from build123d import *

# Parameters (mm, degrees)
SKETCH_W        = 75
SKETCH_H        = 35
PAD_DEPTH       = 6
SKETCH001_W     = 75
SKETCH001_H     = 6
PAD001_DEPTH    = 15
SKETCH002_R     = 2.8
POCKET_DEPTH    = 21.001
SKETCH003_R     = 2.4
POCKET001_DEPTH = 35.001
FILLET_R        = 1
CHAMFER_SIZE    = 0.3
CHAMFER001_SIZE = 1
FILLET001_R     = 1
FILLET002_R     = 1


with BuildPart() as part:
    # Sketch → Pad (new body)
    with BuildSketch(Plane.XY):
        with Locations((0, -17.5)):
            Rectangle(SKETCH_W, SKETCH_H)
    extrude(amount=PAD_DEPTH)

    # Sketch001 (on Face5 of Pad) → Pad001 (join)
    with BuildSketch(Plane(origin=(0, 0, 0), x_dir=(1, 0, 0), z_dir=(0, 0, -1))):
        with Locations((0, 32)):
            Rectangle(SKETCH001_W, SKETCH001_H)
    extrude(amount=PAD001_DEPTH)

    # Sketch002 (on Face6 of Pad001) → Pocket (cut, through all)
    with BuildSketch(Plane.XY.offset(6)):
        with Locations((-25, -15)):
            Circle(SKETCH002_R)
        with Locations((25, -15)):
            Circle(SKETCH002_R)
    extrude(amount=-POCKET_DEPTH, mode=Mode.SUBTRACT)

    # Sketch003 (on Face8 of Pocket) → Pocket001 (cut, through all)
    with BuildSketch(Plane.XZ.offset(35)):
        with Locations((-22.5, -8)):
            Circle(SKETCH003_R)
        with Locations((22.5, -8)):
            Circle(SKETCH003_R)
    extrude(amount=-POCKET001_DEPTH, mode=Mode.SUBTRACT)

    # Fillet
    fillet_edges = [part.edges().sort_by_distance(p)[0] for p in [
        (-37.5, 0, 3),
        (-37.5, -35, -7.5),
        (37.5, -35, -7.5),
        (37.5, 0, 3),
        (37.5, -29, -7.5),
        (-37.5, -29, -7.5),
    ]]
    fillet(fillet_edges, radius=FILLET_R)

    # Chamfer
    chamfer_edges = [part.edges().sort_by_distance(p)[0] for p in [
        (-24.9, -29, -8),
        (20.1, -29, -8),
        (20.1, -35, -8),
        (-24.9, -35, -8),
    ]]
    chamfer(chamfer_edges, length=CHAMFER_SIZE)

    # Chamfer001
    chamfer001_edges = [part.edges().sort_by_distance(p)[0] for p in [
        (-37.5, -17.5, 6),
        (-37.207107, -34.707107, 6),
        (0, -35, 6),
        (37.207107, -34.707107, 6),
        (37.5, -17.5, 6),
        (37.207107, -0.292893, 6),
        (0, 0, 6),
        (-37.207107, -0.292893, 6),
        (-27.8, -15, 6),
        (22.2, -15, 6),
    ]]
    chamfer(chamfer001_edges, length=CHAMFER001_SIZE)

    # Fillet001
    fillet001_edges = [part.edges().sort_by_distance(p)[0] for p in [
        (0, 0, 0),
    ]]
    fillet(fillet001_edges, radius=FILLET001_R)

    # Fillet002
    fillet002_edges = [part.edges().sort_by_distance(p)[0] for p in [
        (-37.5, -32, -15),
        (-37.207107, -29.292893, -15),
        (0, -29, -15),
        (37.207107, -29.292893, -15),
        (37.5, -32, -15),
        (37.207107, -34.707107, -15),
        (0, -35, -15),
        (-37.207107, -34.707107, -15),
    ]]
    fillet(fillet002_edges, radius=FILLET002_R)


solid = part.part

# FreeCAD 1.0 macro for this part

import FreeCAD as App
import Part
import Sketcher


def edges_at(feature, points):
    """Names of the edges that pass closest to the given points."""
    edges = feature.Shape.Edges
    near = lambda p: min(range(len(edges)), key=lambda i: edges[i].distToShape(Part.Vertex(*p))[0])
    return sorted({f"Edge{near(p) + 1}" for p in points})

doc = App.newDocument("Part")
body = doc.addObject("PartDesign::Body", "Body")

sketch1 = body.newObject("Sketcher::SketchObject", "Sketch")
sketch1.AttachmentSupport = (doc.getObject("XY_Plane"), [""])
sketch1.MapMode = "FlatFace"
sketch1.addGeometry([
    Part.LineSegment(App.Vector(-37.5, 0, 0), App.Vector(-37.5, -35, 0)),
    Part.LineSegment(App.Vector(-37.5, -35, 0), App.Vector(37.5, -35, 0)),
    Part.LineSegment(App.Vector(37.5, -35, 0), App.Vector(37.5, 0, 0)),
    Part.LineSegment(App.Vector(37.5, 0, 0), App.Vector(-37.5, 0, 0)),
], False)
sketch1.addConstraint([
    Sketcher.Constraint("Coincident", 0, 2, 1, 1),
    Sketcher.Constraint("Coincident", 1, 2, 2, 1),
    Sketcher.Constraint("Coincident", 2, 2, 3, 1),
    Sketcher.Constraint("Coincident", 3, 2, 0, 1),
    Sketcher.Constraint("Vertical", 0),
    Sketcher.Constraint("Horizontal", 1),
    Sketcher.Constraint("Vertical", 2),
    Sketcher.Constraint("Horizontal", 3),
    Sketcher.Constraint("Symmetric", 2, 2, 3, 2, -1, 1),
    Sketcher.Constraint("DistanceX", 1, 1, 1, 2, 75.0),
    Sketcher.Constraint("DistanceY", 0, 2, 0, 1, 35.0),
])
pad1 = body.newObject("PartDesign::Pad", "Pad")
pad1.Profile = sketch1
pad1.Length = 6

sketch2 = body.newObject("Sketcher::SketchObject", "Sketch001")
sketch2.AttachmentSupport = (doc.getObject("XY_Plane"), [""])
sketch2.MapMode = "FlatFace"
sketch2.addGeometry([
    Part.LineSegment(App.Vector(-37.5, -35, 0), App.Vector(-37.5, -29, 0)),
    Part.LineSegment(App.Vector(-37.5, -29, 0), App.Vector(37.5, -29, 0)),
    Part.LineSegment(App.Vector(37.5, -29, 0), App.Vector(37.5, -35, 0)),
    Part.LineSegment(App.Vector(37.5, -35, 0), App.Vector(-37.5, -35, 0)),
], False)
sketch2.addConstraint([
    Sketcher.Constraint("Coincident", 0, 2, 1, 1),
    Sketcher.Constraint("Coincident", 1, 2, 2, 1),
    Sketcher.Constraint("Coincident", 2, 2, 3, 1),
    Sketcher.Constraint("Coincident", 3, 2, 0, 1),
    Sketcher.Constraint("Vertical", 0),
    Sketcher.Constraint("Horizontal", 1),
    Sketcher.Constraint("Vertical", 2),
    Sketcher.Constraint("Horizontal", 3),
    Sketcher.Constraint("DistanceX", 1, 1, 1, 2, 75.0),
    Sketcher.Constraint("DistanceY", 0, 1, 0, 2, 6.0),
    Sketcher.Constraint("DistanceY", 0, 2, -1, 1, 29.0),
    Sketcher.Constraint("DistanceX", 0, 2, -1, 1, 37.5),
])
pad2 = body.newObject("PartDesign::Pad", "Pad001")
pad2.Profile = sketch2
pad2.Length = 15
pad2.Reversed = True

sketch3 = body.newObject("Sketcher::SketchObject", "Sketch002")
sketch3.AttachmentSupport = (doc.getObject("XY_Plane"), [""])
sketch3.MapMode = "FlatFace"
sketch3.AttachmentOffset = App.Placement(App.Vector(0, 0, 6), App.Rotation())
sketch3.addGeometry([
    Part.Circle(App.Vector(-25, -15, 0), App.Vector(0, 0, 1), 2.8),
    Part.Circle(App.Vector(25, -15, 0), App.Vector(0, 0, 1), 2.8),
], False)
sketch3.addConstraint([
    Sketcher.Constraint("Equal", 0, 1),
    Sketcher.Constraint("Symmetric", 0, 3, 1, 3, -2),
    Sketcher.Constraint("Diameter", 0, 5.6),
    Sketcher.Constraint("DistanceX", 0, 3, -1, 1, 25.0),
    Sketcher.Constraint("DistanceY", 0, 3, -1, 1, 15.0),
])
pocket1 = body.newObject("PartDesign::Pocket", "Pocket")
pocket1.Profile = sketch3
pocket1.Type = "ThroughAll"

sketch4 = body.newObject("Sketcher::SketchObject", "Sketch003")
sketch4.AttachmentSupport = (doc.getObject("XZ_Plane"), [""])
sketch4.MapMode = "FlatFace"
sketch4.AttachmentOffset = App.Placement(App.Vector(0, 0, 35), App.Rotation())
sketch4.addGeometry([
    Part.Circle(App.Vector(-22.5, -8, 0), App.Vector(0, 0, 1), 2.4),
    Part.Circle(App.Vector(22.5, -8, 0), App.Vector(0, 0, 1), 2.4),
], False)
sketch4.addConstraint([
    Sketcher.Constraint("Equal", 0, 1),
    Sketcher.Constraint("Symmetric", 0, 3, 1, 3, -2),
    Sketcher.Constraint("Diameter", 0, 4.8),
    Sketcher.Constraint("DistanceY", 0, 3, -1, 1, 8.0),
    Sketcher.Constraint("DistanceX", 0, 3, 1, 3, 45.0),
])
pocket2 = body.newObject("PartDesign::Pocket", "Pocket001")
pocket2.Profile = sketch4
pocket2.Type = "ThroughAll"
doc.recompute()

fillet = body.newObject("PartDesign::Fillet", "Fillet")
fillet.Base = (pocket2, edges_at(pocket2, [
    (-37.5, 0, 3),
    (-37.5, -35, -4.5),
    (37.5, -35, -4.5),
    (37.5, 0, 3),
    (37.5, -29, -7.5),
    (-37.5, -29, -7.5),
]))
fillet.Radius = 1
doc.recompute()

chamfer = body.newObject("PartDesign::Chamfer", "Chamfer")
chamfer.Base = (fillet, edges_at(fillet, [
    (-24.9, -29, -8),
    (20.1, -29, -8),
    (20.1, -35, -8),
    (-24.9, -35, -8),
]))
chamfer.Size = 0.3
doc.recompute()

chamfer2 = body.newObject("PartDesign::Chamfer", "Chamfer001")
chamfer2.Base = (chamfer, edges_at(chamfer, [
    (-37.5, -17.5, 6),
    (-37.207, -34.707, 6),
    (0, -35, 6),
    (37.207, -34.707, 6),
    (37.5, -17.5, 6),
    (37.207, -0.293, 6),
    (0, 0, 6),
    (-37.207, -0.293, 6),
    (-27.8, -15, 6),
    (22.2, -15, 6),
]))
chamfer2.Size = 1
doc.recompute()

fillet2 = body.newObject("PartDesign::Fillet", "Fillet001")
fillet2.Base = (chamfer2, edges_at(chamfer2, [(0, 0, 0)]))
fillet2.Radius = 1
doc.recompute()

fillet3 = body.newObject("PartDesign::Fillet", "Fillet002")
fillet3.Base = (fillet2, edges_at(fillet2, [
    (-37.5, -32, -15),
    (-37.207, -29.293, -15),
    (0, -29, -15),
    (37.207, -29.293, -15),
    (37.5, -32, -15),
    (37.207, -34.707, -15),
    (0, -35, -15),
    (-37.207, -34.707, -15),
]))
fillet3.Radius = 1

doc.recompute()
